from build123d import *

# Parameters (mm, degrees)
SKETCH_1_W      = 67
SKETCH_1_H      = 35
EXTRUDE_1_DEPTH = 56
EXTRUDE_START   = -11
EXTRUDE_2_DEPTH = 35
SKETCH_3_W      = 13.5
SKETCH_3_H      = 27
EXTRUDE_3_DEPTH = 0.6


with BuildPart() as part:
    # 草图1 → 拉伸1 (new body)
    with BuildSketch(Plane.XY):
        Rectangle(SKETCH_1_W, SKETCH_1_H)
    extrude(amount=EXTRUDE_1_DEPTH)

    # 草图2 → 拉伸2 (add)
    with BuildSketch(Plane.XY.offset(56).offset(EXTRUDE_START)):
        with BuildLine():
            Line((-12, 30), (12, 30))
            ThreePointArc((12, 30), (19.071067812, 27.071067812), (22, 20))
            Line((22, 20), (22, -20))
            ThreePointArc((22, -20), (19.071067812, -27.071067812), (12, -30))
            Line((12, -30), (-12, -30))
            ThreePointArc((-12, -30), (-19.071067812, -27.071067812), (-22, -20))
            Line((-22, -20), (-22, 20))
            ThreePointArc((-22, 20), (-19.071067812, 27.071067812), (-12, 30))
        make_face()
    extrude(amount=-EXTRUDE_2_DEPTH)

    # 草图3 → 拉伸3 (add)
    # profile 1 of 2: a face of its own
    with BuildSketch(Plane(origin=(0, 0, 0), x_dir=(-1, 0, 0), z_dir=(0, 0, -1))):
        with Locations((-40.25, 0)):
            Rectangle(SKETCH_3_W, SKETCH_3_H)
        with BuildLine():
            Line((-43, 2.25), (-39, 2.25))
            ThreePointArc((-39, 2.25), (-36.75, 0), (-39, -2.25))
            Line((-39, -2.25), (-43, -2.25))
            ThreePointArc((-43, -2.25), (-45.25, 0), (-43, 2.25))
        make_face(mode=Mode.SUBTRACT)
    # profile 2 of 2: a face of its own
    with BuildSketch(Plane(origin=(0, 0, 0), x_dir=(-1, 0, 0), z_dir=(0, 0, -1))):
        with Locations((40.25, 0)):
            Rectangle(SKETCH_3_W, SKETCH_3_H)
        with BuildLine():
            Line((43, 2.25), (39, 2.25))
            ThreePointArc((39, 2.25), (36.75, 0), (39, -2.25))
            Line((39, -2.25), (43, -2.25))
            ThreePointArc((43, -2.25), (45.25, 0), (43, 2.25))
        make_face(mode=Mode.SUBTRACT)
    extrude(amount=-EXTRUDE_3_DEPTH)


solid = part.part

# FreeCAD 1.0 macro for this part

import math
import FreeCAD as App
import Part
import Sketcher
from FreeCAD import Vector
Q = App.Units.Quantity


def add_polygon(sketch, points):
    """Adds a closed chain of lines whose ends are joined by coincident constraints."""
    first, n = sketch.GeometryCount, len(points)
    for a, b in zip(points, points[1:] + points[:1]):
        sketch.addGeometry(Part.LineSegment(App.Vector(*a, 0), App.Vector(*b, 0)), False)
    for i in range(n):
        sketch.addConstraint(Sketcher.Constraint("Coincident", first + i, 2, first + (i + 1) % n, 1))

doc = App.newDocument("Part")
body = doc.addObject("PartDesign::Body", "Body")

sketch1 = body.newObject("Sketcher::SketchObject", "Sketch")
sketch1.AttachmentSupport = (doc.getObject("XY_Plane"), [""])
sketch1.MapMode = "FlatFace"
add_polygon(sketch1, [(-34, 18), (-34, -18), (34, -18), (34, 18)])
sketch1.addConstraint([
    Sketcher.Constraint("Vertical", 0),
    Sketcher.Constraint("Horizontal", 1),
    Sketcher.Constraint("Vertical", 2),
    Sketcher.Constraint("Horizontal", 3),
    Sketcher.Constraint("Symmetric", 0, 2, 2, 2, -1, 1),
    Sketcher.Constraint("DistanceX", 1, 1, 1, 2, Q("67 mm")),
    Sketcher.Constraint("DistanceY", 0, 2, 0, 1, Q("35 mm")),
])
pad1 = body.newObject("PartDesign::Pad", "Pad")
pad1.Profile = sketch1
pad1.Length = 56

sketch2 = body.newObject("Sketcher::SketchObject", "Sketch001")
sketch2.AttachmentSupport = (doc.getObject("XY_Plane"), [""])
sketch2.MapMode = "FlatFace"
sketch2.AttachmentOffset = App.Placement(Vector(0, 0, 45), App.Rotation())
sketch2.addGeometry([
    Part.LineSegment(Vector(12, 30, 0), Vector(-12, 30, 0)),
    Part.ArcOfCircle(Part.Circle(Vector(-12, 20, 0), Vector(0, 0, 1), 10), math.radians(90), math.radians(180)),
    Part.LineSegment(Vector(-22, 20, 0), Vector(-22, -20, 0)),
    Part.ArcOfCircle(Part.Circle(Vector(-12, -20, 0), Vector(0, 0, 1), 10), math.radians(180), math.radians(270)),
    Part.LineSegment(Vector(-12, -30, 0), Vector(12, -30, 0)),
    Part.ArcOfCircle(Part.Circle(Vector(12, -20, 0), Vector(0, 0, 1), 10), math.radians(-90), math.radians(0)),
    Part.LineSegment(Vector(22, -20, 0), Vector(22, 20, 0)),
    Part.ArcOfCircle(Part.Circle(Vector(12, 20, 0), Vector(0, 0, 1), 10), math.radians(0), math.radians(90)),
], False)
sketch2.addConstraint([
    Sketcher.Constraint("Tangent", 0, 2, 1, 1),
    Sketcher.Constraint("Tangent", 1, 2, 2, 1),
    Sketcher.Constraint("Tangent", 2, 2, 3, 1),
    Sketcher.Constraint("Tangent", 3, 2, 4, 1),
    Sketcher.Constraint("Tangent", 4, 2, 5, 1),
    Sketcher.Constraint("Tangent", 5, 2, 6, 1),
    Sketcher.Constraint("Tangent", 6, 2, 7, 1),
    Sketcher.Constraint("Tangent", 7, 2, 0, 1),
    Sketcher.Constraint("Horizontal", 0),
    Sketcher.Constraint("Vertical", 2),
    Sketcher.Constraint("Horizontal", 4),
    Sketcher.Constraint("Vertical", 6),
    Sketcher.Constraint("Equal", 1, 3),
    Sketcher.Constraint("Equal", 3, 5),
    Sketcher.Constraint("Equal", 5, 7),
    Sketcher.Constraint("Symmetric", 1, 3, 5, 3, -1, 1),
    Sketcher.Constraint("Radius", 1, Q("10 mm")),
    Sketcher.Constraint("DistanceX", 0, 2, 0, 1, Q("24 mm")),
    Sketcher.Constraint("DistanceY", 2, 2, 2, 1, Q("40 mm")),
])
pad2 = body.newObject("PartDesign::Pad", "Pad001")
pad2.Profile = sketch2
pad2.Length = 35
pad2.Reversed = True

sketch3 = body.newObject("Sketcher::SketchObject", "Sketch002")
sketch3.AttachmentSupport = (doc.getObject("XY_Plane"), [""])
sketch3.MapMode = "FlatFace"
add_polygon(sketch3, [(47, 13.5), (47, -13.5), (33.5, -13.5), (33.5, 13.5)])
sketch3.addGeometry(Part.ArcOfCircle(Part.Circle(Vector(43, 0, 0), Vector(0, 0, 1), 2.2), math.radians(-90), math.radians(90)), False)
sketch3.addGeometry(Part.LineSegment(Vector(43, 2.2, 0), Vector(39, 2.2, 0)), False)
sketch3.addGeometry(Part.ArcOfCircle(Part.Circle(Vector(39, 0, 0), Vector(0, 0, 1), 2.2), math.radians(90), math.radians(270)), False)
sketch3.addGeometry(Part.LineSegment(Vector(39, -2.2, 0), Vector(43, -2.2, 0)), False)
add_polygon(sketch3, [(-33.5, 13.5), (-33.5, -13.5), (-47, -13.5), (-47, 13.5)])
sketch3.addGeometry(Part.LineSegment(Vector(-39, 2.2, 0), Vector(-43, 2.2, 0)), False)
sketch3.addGeometry(Part.ArcOfCircle(Part.Circle(Vector(-43, 0, 0), Vector(0, 0, 1), 2.2), math.radians(90), math.radians(270)), False)
sketch3.addGeometry(Part.LineSegment(Vector(-43, -2.2, 0), Vector(-39, -2.2, 0)), False)
sketch3.addGeometry(Part.ArcOfCircle(Part.Circle(Vector(-39, 0, 0), Vector(0, 0, 1), 2.2), math.radians(-90), math.radians(90)), False)
sketch3.addConstraint([
    Sketcher.Constraint("Tangent", 4, 2, 5, 1),
    Sketcher.Constraint("Tangent", 5, 2, 6, 1),
    Sketcher.Constraint("Tangent", 6, 2, 7, 1),
    Sketcher.Constraint("Tangent", 7, 2, 4, 1),
    Sketcher.Constraint("Tangent", 12, 2, 13, 1),
    Sketcher.Constraint("Tangent", 13, 2, 14, 1),
    Sketcher.Constraint("Tangent", 14, 2, 15, 1),
    Sketcher.Constraint("Tangent", 15, 2, 12, 1),
    Sketcher.Constraint("Vertical", 0),
    Sketcher.Constraint("Horizontal", 1),
    Sketcher.Constraint("Vertical", 2),
    Sketcher.Constraint("Horizontal", 3),
    Sketcher.Constraint("Horizontal", 5),
    Sketcher.Constraint("Horizontal", 7),
    Sketcher.Constraint("Vertical", 8),
    Sketcher.Constraint("Horizontal", 9),
    Sketcher.Constraint("Vertical", 10),
    Sketcher.Constraint("Horizontal", 11),
    Sketcher.Constraint("Horizontal", 12),
    Sketcher.Constraint("Horizontal", 14),
    Sketcher.Constraint("Equal", 6, 13),
    Sketcher.Constraint("Symmetric", 4, 3, 13, 3, -1, 1),
    Sketcher.Constraint("Symmetric", 2, 2, 8, 2, -1, 1),
    Sketcher.Constraint("Symmetric", 0, 2, 10, 2, -1, 1),
    Sketcher.Constraint("Symmetric", 6, 3, 15, 3, -2),
    Sketcher.Constraint("Horizontal", 1, 2, 8, 2),
    Sketcher.Constraint("DistanceX", 5, 2, 5, 1, Q("4 mm")),
    Sketcher.Constraint("DistanceY", 0, 2, 0, 1, Q("27 mm")),
    Sketcher.Constraint("Radius", 4, Q("2.25 mm")),
    Sketcher.Constraint("DistanceX", 1, 2, 1, 1, Q("13.5 mm")),
    Sketcher.Constraint("DistanceX", -1, 1, 4, 3, Q("43 mm")),
    Sketcher.Constraint("DistanceX", -1, 1, 0, 2, Q("47 mm")),
])
pad3 = body.newObject("PartDesign::Pad", "Pad002")
pad3.Profile = sketch3
pad3.Length = 0.6

doc.recompute()
